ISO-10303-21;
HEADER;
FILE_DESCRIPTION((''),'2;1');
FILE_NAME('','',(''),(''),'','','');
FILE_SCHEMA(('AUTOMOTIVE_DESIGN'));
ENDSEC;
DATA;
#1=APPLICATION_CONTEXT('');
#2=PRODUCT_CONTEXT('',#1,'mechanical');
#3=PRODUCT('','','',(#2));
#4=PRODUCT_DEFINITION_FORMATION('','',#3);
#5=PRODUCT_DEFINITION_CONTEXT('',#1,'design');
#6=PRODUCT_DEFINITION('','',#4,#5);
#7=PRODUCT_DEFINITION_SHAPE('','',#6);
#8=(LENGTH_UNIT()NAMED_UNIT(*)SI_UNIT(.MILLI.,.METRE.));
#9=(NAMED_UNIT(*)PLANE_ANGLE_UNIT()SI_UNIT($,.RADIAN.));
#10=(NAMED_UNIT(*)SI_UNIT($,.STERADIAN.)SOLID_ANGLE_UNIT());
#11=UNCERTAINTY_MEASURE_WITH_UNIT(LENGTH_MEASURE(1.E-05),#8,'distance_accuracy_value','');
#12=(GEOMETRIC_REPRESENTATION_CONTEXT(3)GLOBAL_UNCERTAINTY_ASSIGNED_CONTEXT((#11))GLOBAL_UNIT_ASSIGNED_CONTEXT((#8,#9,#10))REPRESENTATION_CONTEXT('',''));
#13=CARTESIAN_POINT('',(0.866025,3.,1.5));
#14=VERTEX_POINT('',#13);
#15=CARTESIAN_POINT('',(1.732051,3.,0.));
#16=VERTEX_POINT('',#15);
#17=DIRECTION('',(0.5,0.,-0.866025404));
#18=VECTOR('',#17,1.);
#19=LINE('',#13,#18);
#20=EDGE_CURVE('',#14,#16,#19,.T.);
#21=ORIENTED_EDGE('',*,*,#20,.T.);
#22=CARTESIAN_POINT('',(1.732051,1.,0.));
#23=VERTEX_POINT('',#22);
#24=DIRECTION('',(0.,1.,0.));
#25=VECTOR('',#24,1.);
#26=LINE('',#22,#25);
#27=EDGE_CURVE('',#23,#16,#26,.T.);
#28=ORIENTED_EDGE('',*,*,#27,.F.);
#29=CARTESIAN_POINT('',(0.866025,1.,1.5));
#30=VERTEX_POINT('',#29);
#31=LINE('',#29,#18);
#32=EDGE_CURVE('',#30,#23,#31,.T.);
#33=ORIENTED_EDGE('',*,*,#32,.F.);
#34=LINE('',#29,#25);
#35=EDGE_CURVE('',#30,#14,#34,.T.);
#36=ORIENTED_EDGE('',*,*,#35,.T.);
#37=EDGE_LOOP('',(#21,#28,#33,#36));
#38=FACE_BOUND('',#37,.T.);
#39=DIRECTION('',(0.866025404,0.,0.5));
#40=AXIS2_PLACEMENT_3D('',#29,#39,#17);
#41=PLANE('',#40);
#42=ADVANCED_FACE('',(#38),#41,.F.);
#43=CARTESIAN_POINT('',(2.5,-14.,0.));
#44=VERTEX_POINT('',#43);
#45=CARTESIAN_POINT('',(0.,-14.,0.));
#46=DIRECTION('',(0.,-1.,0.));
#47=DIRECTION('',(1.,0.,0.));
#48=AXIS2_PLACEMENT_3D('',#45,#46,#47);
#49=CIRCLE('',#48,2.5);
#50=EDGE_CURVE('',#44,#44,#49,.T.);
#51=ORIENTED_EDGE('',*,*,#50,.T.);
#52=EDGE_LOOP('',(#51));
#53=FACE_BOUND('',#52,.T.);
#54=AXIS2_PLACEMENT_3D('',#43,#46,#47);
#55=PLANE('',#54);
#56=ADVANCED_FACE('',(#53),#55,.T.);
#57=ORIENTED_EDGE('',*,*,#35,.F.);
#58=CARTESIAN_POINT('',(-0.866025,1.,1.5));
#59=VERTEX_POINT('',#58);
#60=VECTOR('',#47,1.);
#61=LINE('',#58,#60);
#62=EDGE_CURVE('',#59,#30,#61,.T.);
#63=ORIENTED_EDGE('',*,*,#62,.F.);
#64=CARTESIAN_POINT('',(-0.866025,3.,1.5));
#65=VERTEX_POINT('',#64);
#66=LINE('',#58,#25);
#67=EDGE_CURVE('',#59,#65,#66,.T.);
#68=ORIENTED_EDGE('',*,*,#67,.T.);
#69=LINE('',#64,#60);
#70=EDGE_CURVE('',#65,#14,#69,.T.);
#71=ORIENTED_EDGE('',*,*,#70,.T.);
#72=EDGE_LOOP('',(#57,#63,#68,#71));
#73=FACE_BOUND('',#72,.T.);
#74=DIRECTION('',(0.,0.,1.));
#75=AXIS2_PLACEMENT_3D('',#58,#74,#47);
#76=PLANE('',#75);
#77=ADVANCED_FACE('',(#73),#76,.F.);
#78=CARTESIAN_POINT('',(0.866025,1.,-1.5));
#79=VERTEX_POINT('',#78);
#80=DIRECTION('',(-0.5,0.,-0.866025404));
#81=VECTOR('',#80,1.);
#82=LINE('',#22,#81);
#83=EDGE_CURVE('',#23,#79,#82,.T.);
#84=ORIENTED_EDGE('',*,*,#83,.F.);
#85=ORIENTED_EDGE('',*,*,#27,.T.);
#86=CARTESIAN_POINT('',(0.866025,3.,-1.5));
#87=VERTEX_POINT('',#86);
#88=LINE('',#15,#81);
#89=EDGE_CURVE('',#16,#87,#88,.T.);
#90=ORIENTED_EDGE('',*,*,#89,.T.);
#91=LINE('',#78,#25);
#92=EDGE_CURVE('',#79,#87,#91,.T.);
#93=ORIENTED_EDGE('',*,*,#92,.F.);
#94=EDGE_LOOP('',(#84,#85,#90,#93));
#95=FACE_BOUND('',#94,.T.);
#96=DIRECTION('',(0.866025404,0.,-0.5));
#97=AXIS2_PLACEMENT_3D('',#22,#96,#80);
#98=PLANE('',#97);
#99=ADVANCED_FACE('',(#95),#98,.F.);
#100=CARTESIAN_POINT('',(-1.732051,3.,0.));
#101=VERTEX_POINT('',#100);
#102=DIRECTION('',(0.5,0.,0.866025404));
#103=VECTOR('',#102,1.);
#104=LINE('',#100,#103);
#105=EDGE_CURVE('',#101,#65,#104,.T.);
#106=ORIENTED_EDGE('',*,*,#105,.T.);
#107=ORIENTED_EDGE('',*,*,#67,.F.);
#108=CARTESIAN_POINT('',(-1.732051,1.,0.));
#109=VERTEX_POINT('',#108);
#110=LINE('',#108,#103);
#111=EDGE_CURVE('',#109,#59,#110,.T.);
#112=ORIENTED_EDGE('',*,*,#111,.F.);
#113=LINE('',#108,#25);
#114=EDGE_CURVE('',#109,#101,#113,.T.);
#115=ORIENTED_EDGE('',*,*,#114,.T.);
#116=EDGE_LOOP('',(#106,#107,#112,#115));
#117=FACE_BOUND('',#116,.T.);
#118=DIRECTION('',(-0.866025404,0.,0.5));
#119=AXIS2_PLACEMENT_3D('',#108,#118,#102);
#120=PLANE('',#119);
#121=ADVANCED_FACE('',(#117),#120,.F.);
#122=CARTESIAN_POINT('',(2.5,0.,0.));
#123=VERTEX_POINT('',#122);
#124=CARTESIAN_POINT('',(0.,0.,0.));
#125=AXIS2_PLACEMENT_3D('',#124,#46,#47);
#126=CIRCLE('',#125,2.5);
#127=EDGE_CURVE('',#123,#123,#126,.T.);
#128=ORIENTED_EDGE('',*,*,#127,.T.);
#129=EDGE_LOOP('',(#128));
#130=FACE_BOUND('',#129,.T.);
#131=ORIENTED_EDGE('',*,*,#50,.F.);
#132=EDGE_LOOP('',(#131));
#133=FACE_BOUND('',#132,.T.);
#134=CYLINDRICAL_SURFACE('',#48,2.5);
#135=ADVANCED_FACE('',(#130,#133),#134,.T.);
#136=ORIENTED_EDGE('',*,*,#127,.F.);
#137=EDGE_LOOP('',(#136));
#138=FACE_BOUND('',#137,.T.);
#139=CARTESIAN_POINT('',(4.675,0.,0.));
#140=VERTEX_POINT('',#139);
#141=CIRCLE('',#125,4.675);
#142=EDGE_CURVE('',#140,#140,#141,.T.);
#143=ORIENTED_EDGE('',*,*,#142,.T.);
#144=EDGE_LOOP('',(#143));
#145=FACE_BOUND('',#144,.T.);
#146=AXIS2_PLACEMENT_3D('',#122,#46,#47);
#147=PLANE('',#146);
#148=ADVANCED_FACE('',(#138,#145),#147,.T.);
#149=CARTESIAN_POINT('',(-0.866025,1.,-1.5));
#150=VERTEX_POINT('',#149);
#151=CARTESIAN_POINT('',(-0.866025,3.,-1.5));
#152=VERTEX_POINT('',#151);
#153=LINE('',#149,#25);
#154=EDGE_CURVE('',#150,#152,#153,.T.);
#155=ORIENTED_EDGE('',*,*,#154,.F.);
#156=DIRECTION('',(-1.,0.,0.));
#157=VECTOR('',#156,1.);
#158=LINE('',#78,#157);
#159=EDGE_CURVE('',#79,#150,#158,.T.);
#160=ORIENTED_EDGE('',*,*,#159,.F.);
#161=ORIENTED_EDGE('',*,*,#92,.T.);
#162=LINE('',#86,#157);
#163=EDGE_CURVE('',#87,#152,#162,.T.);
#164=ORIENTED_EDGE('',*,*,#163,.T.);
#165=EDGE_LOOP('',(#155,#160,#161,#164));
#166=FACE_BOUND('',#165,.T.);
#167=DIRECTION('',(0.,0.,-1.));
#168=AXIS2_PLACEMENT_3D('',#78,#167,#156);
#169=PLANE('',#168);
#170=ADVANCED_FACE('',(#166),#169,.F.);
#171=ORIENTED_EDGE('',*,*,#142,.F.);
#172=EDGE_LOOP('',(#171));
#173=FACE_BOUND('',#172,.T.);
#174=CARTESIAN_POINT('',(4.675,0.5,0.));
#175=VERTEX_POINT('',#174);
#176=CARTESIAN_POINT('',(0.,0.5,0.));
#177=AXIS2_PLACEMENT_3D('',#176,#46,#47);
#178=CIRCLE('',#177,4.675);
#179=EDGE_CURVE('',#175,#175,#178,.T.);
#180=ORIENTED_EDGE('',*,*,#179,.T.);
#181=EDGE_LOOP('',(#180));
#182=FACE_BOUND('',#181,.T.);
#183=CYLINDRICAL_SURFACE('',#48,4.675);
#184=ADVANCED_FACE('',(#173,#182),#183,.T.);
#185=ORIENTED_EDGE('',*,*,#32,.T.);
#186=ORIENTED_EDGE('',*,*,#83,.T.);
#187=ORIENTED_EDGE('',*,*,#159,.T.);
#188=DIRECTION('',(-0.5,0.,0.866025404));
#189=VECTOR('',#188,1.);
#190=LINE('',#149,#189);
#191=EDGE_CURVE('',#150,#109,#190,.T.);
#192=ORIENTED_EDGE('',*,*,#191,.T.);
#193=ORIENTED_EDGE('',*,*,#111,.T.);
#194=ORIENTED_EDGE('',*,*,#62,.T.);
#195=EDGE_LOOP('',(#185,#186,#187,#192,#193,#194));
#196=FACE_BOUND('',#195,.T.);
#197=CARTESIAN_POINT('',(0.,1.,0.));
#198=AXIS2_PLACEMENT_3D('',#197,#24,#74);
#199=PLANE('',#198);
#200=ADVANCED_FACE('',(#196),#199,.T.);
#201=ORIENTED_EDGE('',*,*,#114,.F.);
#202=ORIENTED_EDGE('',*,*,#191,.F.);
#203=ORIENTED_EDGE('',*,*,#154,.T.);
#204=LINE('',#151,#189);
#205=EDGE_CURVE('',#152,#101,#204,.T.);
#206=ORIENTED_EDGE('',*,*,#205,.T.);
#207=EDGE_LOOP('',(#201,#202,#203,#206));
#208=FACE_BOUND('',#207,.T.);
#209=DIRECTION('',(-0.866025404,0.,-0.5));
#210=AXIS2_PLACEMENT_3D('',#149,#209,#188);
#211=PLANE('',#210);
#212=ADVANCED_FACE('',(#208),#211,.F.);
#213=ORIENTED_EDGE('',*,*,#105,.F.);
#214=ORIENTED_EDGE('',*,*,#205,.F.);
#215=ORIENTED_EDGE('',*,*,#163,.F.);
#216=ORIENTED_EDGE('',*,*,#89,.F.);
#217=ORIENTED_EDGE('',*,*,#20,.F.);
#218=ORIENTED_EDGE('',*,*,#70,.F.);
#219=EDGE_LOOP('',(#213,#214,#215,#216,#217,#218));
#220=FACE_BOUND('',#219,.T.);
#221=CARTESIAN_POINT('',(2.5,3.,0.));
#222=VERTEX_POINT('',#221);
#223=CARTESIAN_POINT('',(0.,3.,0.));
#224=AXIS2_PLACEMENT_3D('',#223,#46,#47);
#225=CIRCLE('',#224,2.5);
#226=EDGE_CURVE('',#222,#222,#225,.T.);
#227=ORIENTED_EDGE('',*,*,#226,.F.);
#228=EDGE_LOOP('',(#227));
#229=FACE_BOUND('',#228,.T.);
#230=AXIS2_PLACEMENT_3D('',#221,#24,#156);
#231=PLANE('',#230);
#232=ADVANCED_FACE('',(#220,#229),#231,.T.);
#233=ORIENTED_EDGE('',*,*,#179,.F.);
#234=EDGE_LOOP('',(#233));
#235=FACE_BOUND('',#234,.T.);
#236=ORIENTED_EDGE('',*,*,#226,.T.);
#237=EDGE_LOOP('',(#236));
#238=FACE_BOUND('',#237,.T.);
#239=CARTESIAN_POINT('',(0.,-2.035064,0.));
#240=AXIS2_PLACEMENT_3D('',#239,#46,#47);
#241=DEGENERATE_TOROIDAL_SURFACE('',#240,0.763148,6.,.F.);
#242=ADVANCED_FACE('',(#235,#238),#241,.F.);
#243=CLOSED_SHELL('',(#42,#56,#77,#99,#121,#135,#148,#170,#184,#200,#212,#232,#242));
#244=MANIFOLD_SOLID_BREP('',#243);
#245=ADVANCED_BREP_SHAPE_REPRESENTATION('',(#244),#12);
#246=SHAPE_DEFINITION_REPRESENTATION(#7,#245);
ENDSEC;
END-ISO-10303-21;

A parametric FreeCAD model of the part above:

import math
import FreeCAD as App
import Part
import Sketcher
Q = App.Units.Quantity

doc = App.newDocument("Part")
body = doc.addObject("PartDesign::Body", "Body")

# Sketch on XY plane
sketch1 = body.newObject("Sketcher::SketchObject", "Sketch")
sketch1.AttachmentSupport = (doc.getObject("XY_Plane"), [""])
sketch1.MapMode = "FlatFace"
sketch1.addGeometry(Part.LineSegment(App.Vector(2.5, 0, 0), App.Vector(4.675, 0, 0)), False)
sketch1.addGeometry(Part.LineSegment(App.Vector(4.675, 0, 0), App.Vector(4.675, 0.5, 0)), False)
sketch1.addGeometry(Part.ArcOfCircle(Part.Circle(App.Vector(-0.763148, -2.035064, 0), App.Vector(0, 0, 1), 6), math.radians(24.993194), math.radians(57.053344)), False)
sketch1.addGeometry(Part.LineSegment(App.Vector(2.5, 3, 0), App.Vector(0, 3, 0)), False)
sketch1.addGeometry(Part.LineSegment(App.Vector(0, 3, 0), App.Vector(0, -14, 0)), False)
sketch1.addGeometry(Part.LineSegment(App.Vector(0, -14, 0), App.Vector(2.5, -14, 0)), False)
sketch1.addGeometry(Part.LineSegment(App.Vector(2.5, -14, 0), App.Vector(2.5, 0, 0)), False)
sketch1.addConstraint(Sketcher.Constraint("Coincident", 0, 2, 1, 1))
sketch1.addConstraint(Sketcher.Constraint("Coincident", 1, 2, 2, 1))
sketch1.addConstraint(Sketcher.Constraint("Coincident", 2, 2, 3, 1))
sketch1.addConstraint(Sketcher.Constraint("Coincident", 3, 2, 4, 1))
sketch1.addConstraint(Sketcher.Constraint("Coincident", 4, 2, 5, 1))
sketch1.addConstraint(Sketcher.Constraint("Coincident", 5, 2, 6, 1))
sketch1.addConstraint(Sketcher.Constraint("Coincident", 6, 2, 0, 1))
sketch1.addConstraint(Sketcher.Constraint("Horizontal", 0))
sketch1.addConstraint(Sketcher.Constraint("Vertical", 1))
sketch1.addConstraint(Sketcher.Constraint("Horizontal", 3))
sketch1.addConstraint(Sketcher.Constraint("Vertical", 4))
sketch1.addConstraint(Sketcher.Constraint("Horizontal", 5))
sketch1.addConstraint(Sketcher.Constraint("Vertical", 6))
sketch1.addConstraint(Sketcher.Constraint("PointOnObject", 0, 2, -1))
sketch1.addConstraint(Sketcher.Constraint("PointOnObject", 3, 2, -2))
sketch1.addConstraint(Sketcher.Constraint("Vertical", 2, 2, 5, 2))
sketch1.addConstraint(Sketcher.Constraint("Radius", 2, 6.0))
sketch1.addConstraint(Sketcher.Constraint("DistanceY", 4, 2, 4, 1, 17.0))
sketch1.addConstraint(Sketcher.Constraint("DistanceY", 6, 1, 6, 2, 14.0))
sketch1.addConstraint(Sketcher.Constraint("DistanceX", 3, 2, 3, 1, 2.5))
sketch1.addConstraint(Sketcher.Constraint("DistanceY", 1, 1, 1, 2, 0.5))
sketch1.addConstraint(Sketcher.Constraint("DistanceX", 0, 1, 0, 2, 2.175))
revolution = body.newObject("PartDesign::Revolution", "Revolution")
revolution.Profile = sketch1
revolution.ReferenceAxis = (sketch1, ["V_Axis"])
revolution.Angle = 360

# Sketch on XZ plane
sketch2 = body.newObject("Sketcher::SketchObject", "Sketch001")
sketch2.AttachmentSupport = (doc.getObject("XZ_Plane"), [""])
sketch2.MapMode = "FlatFace"
sketch2.AttachmentOffset = App.Placement(App.Vector(0, 0, -3), App.Rotation())
sketch2.addGeometry(Part.LineSegment(App.Vector(0.866025, -1.5, 0), App.Vector(-0.866025, -1.5, 0)), False)
sketch2.addGeometry(Part.LineSegment(App.Vector(-0.866025, -1.5, 0), App.Vector(-1.732051, 0, 0)), False)
sketch2.addGeometry(Part.LineSegment(App.Vector(-1.732051, 0, 0), App.Vector(-0.866025, 1.5, 0)), False)
sketch2.addGeometry(Part.LineSegment(App.Vector(-0.866025, 1.5, 0), App.Vector(0.866025, 1.5, 0)), False)
sketch2.addGeometry(Part.LineSegment(App.Vector(0.866025, 1.5, 0), App.Vector(1.732051, 0, 0)), False)
sketch2.addGeometry(Part.LineSegment(App.Vector(1.732051, 0, 0), App.Vector(0.866025, -1.5, 0)), False)
sketch2.addConstraint(Sketcher.Constraint("Coincident", 0, 2, 1, 1))
sketch2.addConstraint(Sketcher.Constraint("Coincident", 1, 2, 2, 1))
sketch2.addConstraint(Sketcher.Constraint("Coincident", 2, 2, 3, 1))
sketch2.addConstraint(Sketcher.Constraint("Coincident", 3, 2, 4, 1))
sketch2.addConstraint(Sketcher.Constraint("Coincident", 4, 2, 5, 1))
sketch2.addConstraint(Sketcher.Constraint("Coincident", 5, 2, 0, 1))
sketch2.addConstraint(Sketcher.Constraint("Horizontal", 0))
sketch2.addConstraint(Sketcher.Constraint("Horizontal", 3))
sketch2.addConstraint(Sketcher.Constraint("Symmetric", 0, 2, 3, 2, -1, 1))
sketch2.addConstraint(Sketcher.Constraint("Symmetric", 1, 2, 4, 2, -1, 1))
sketch2.addConstraint(Sketcher.Constraint("PointOnObject", 1, 2, -1))
sketch2.addConstraint(Sketcher.Constraint("Parallel", 2, 5))
sketch2.addConstraint(Sketcher.Constraint("Vertical", 0, 2, 2, 2))
sketch2.addConstraint(Sketcher.Constraint("Angle", 1, Q("120 deg")))
sketch2.addConstraint(Sketcher.Constraint("DistanceY", 0, 2, 2, 2, 3.0))
sketch2.addConstraint(Sketcher.Constraint("DistanceX", 0, 2, 0, 1, 1.732051))
pocket1 = body.newObject("PartDesign::Pocket", "Pocket")
pocket1.Profile = sketch2
pocket1.Length = 2
pocket1.Reversed = True

doc.recompute()
